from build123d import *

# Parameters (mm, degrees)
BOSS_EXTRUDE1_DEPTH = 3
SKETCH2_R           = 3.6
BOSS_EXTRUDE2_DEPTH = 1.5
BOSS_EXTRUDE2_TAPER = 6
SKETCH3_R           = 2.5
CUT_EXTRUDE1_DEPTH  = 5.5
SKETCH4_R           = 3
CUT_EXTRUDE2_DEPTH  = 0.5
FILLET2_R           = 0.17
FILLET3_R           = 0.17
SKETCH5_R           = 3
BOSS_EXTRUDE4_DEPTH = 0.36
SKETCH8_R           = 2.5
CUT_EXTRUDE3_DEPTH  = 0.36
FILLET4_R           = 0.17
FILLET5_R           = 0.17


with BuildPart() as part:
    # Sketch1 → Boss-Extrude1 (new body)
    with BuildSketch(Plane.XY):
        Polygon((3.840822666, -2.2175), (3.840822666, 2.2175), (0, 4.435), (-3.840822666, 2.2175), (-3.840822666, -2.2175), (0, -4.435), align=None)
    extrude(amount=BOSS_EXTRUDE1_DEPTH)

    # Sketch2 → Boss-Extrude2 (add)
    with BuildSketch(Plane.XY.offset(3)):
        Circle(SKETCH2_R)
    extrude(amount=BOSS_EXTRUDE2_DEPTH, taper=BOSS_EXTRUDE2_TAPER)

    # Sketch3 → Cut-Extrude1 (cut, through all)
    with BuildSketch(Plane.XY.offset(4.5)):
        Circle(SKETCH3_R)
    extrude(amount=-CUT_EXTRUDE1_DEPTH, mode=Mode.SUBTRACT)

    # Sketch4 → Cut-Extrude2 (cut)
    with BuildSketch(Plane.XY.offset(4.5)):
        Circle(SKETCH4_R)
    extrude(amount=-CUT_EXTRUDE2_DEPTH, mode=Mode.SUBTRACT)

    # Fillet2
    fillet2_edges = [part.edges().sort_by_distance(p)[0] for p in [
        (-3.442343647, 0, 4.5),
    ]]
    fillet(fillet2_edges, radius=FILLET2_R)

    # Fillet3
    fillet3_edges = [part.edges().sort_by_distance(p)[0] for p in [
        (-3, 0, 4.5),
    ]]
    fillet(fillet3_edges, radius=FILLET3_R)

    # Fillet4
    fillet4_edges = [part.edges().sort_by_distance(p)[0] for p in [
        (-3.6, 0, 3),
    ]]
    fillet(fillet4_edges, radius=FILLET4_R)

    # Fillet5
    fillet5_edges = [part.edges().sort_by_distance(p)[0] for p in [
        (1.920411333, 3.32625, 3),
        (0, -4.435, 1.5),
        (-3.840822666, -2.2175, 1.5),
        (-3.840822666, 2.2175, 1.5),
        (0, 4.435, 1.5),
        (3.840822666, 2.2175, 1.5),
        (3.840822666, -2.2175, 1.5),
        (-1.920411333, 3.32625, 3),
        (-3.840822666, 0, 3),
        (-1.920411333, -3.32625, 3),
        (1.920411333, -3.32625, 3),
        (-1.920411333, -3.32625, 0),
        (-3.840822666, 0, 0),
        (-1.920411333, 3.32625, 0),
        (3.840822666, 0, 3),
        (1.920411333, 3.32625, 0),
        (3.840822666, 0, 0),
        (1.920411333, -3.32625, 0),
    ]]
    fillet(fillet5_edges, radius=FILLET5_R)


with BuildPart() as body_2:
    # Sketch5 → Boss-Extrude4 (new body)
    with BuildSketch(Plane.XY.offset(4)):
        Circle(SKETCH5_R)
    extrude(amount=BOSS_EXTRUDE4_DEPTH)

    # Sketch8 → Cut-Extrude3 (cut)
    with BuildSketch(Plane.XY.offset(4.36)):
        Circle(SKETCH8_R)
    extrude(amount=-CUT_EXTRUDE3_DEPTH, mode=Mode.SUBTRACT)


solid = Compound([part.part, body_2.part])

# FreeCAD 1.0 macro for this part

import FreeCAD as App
import Part
import Sketcher

V = App.Vector
Q = App.Units.Quantity


def edges_at(feature, points):
    """Names of the edges that pass closest to the given points."""
    edges = feature.Shape.Edges
    near = lambda p: min(range(len(edges)), key=lambda i: edges[i].distToShape(Part.Vertex(*p))[0])
    return sorted({f"Edge{near(p) + 1}" for p in points})

doc = App.newDocument("Part")
body = doc.addObject("PartDesign::Body", "Body")

sketch1 = doc.addObject("Sketcher::SketchObject", "Sketch")
body.addObject(sketch1)
sketch1.AttachmentSupport = (doc.XY_Plane, [""])
sketch1.MapMode = "FlatFace"
sketch1.addGeometry(Part.LineSegment(V(3.8, -2.2, 0), V(3.8, 2.2, 0)), False)
sketch1.addGeometry(Part.LineSegment(V(3.8, 2.2, 0), V(0, 4.4, 0)), False)
sketch1.addGeometry(Part.LineSegment(V(0, 4.4, 0), V(-3.8, 2.2, 0)), False)
sketch1.addGeometry(Part.LineSegment(V(-3.8, 2.2, 0), V(-3.8, -2.2, 0)), False)
sketch1.addGeometry(Part.LineSegment(V(-3.8, -2.2, 0), V(0, -4.4, 0)), False)
sketch1.addGeometry(Part.LineSegment(V(0, -4.4, 0), V(3.8, -2.2, 0)), False)
sketch1.addConstraint(Sketcher.Constraint("Coincident", 0, 2, 1, 1))
sketch1.addConstraint(Sketcher.Constraint("Coincident", 1, 2, 2, 1))
sketch1.addConstraint(Sketcher.Constraint("Coincident", 2, 2, 3, 1))
sketch1.addConstraint(Sketcher.Constraint("Coincident", 3, 2, 4, 1))
sketch1.addConstraint(Sketcher.Constraint("Coincident", 4, 2, 5, 1))
sketch1.addConstraint(Sketcher.Constraint("Coincident", 5, 2, 0, 1))
sketch1.addConstraint(Sketcher.Constraint("Vertical", 0))
sketch1.addConstraint(Sketcher.Constraint("Vertical", 3))
sketch1.addConstraint(Sketcher.Constraint("Symmetric", 0, 2, 3, 2, -1, 1))
sketch1.addConstraint(Sketcher.Constraint("Symmetric", 1, 2, 4, 2, -1, 1))
sketch1.addConstraint(Sketcher.Constraint("PointOnObject", 1, 2, -2))
sketch1.addConstraint(Sketcher.Constraint("Parallel", 2, 5))
sketch1.addConstraint(Sketcher.Constraint("Horizontal", 0, 2, 2, 2))
sketch1.addConstraint(Sketcher.Constraint("Angle", 1, Q("150 deg")))
sketch1.addConstraint(Sketcher.Constraint("DistanceY", 0, 1, 0, 2, 4.435))
sketch1.addConstraint(Sketcher.Constraint("DistanceY", 4, 2, 1, 2, 8.87))
pad1 = doc.addObject("PartDesign::Pad", "Pad")
body.addObject(pad1)
pad1.Profile = sketch1
pad1.Length = 3

sketch2 = doc.addObject("Sketcher::SketchObject", "Sketch001")
body.addObject(sketch2)
sketch2.AttachmentSupport = (doc.XY_Plane, [""])
sketch2.MapMode = "FlatFace"
sketch2.AttachmentOffset = App.Placement(V(0, 0, 3), App.Rotation())
sketch2.addGeometry(Part.Circle(V(0, 0, 0), V(0, 0, 1), 3.6), False)
sketch2.addConstraint(Sketcher.Constraint("Coincident", 0, 3, -1, 1))
sketch2.addConstraint(Sketcher.Constraint("Diameter", 0, 7.2))
pad2 = doc.addObject("PartDesign::Pad", "Pad001")
body.addObject(pad2)
pad2.Profile = sketch2
pad2.Length = 1.5
pad2.TaperAngle = -6

sketch3 = doc.addObject("Sketcher::SketchObject", "Sketch002")
body.addObject(sketch3)
sketch3.AttachmentSupport = (doc.XY_Plane, [""])
sketch3.MapMode = "FlatFace"
sketch3.AttachmentOffset = App.Placement(V(0, 0, 4.5), App.Rotation())
sketch3.addGeometry(Part.Circle(V(0, 0, 0), V(0, 0, 1), 2.5), False)
sketch3.addConstraint(Sketcher.Constraint("Coincident", 0, 3, -1, 1))
sketch3.addConstraint(Sketcher.Constraint("Diameter", 0, 5.0))
pocket1 = doc.addObject("PartDesign::Pocket", "Pocket")
body.addObject(pocket1)
pocket1.Profile = sketch3
pocket1.Type = "ThroughAll"

sketch4 = doc.addObject("Sketcher::SketchObject", "Sketch003")
body.addObject(sketch4)
sketch4.AttachmentSupport = (doc.XY_Plane, [""])
sketch4.MapMode = "FlatFace"
sketch4.AttachmentOffset = App.Placement(V(0, 0, 4.5), App.Rotation())
sketch4.addGeometry(Part.Circle(V(0, 0, 0), V(0, 0, 1), 3), False)
sketch4.addConstraint(Sketcher.Constraint("Coincident", 0, 3, -1, 1))
sketch4.addConstraint(Sketcher.Constraint("Diameter", 0, 6.0))
pocket2 = doc.addObject("PartDesign::Pocket", "Pocket001")
body.addObject(pocket2)
pocket2.Profile = sketch4
pocket2.Length = 0.5
doc.recompute()

fillet = doc.addObject("PartDesign::Fillet", "Fillet")
body.addObject(fillet)
fillet.Base = (pocket2, edges_at(pocket2, [(-3.442, 0, 4.5)]))
fillet.Radius = 0.17
doc.recompute()

fillet2 = doc.addObject("PartDesign::Fillet", "Fillet001")
body.addObject(fillet2)
fillet2.Base = (fillet, edges_at(fillet, [(-3, 0, 4.5)]))
fillet2.Radius = 0.17
doc.recompute()

fillet3 = doc.addObject("PartDesign::Fillet", "Fillet002")
body.addObject(fillet3)
fillet3.Base = (fillet2, edges_at(fillet2, [(-3.6, 0, 3)]))
fillet3.Radius = 0.17
doc.recompute()

fillet4 = doc.addObject("PartDesign::Fillet", "Fillet003")
body.addObject(fillet4)
fillet4.Base = (fillet3, edges_at(fillet3, [
    (1.92, 3.326, 3),
    (0, -4.435, 1.5),
    (-3.841, -2.217, 1.5),
    (-3.841, 2.217, 1.5),
    (0, 4.435, 1.5),
    (3.841, 2.217, 1.5),
    (3.841, -2.217, 1.5),
    (-1.92, 3.326, 3),
    (-3.841, 0, 3),
    (-1.92, -3.326, 3),
    (1.92, -3.326, 3),
    (-1.92, -3.326, 0),
    (-3.841, 0, 0),
    (-1.92, 3.326, 0),
    (3.841, 0, 3),
    (1.92, 3.326, 0),
    (3.841, 0, 0),
    (1.92, -3.326, 0),
]))
fillet4.Radius = 0.17
body2 = doc.addObject("PartDesign::Body", "Body001")

sketch5 = doc.addObject("Sketcher::SketchObject", "Sketch004")
body2.addObject(sketch5)
sketch5.AttachmentSupport = (doc.getObject("XY_Plane001"), [""])
sketch5.MapMode = "FlatFace"
sketch5.AttachmentOffset = App.Placement(V(0, 0, 4), App.Rotation())
sketch5.addGeometry(Part.Circle(V(0, 0, 0), V(0, 0, 1), 3), False)
sketch5.addConstraint(Sketcher.Constraint("Coincident", 0, 3, -1, 1))
sketch5.addConstraint(Sketcher.Constraint("Diameter", 0, 6.0))
pad3 = doc.addObject("PartDesign::Pad", "Pad002")
body2.addObject(pad3)
pad3.Profile = sketch5
pad3.Length = 0.36

sketch6 = doc.addObject("Sketcher::SketchObject", "Sketch005")
body2.addObject(sketch6)
sketch6.AttachmentSupport = (doc.getObject("XY_Plane001"), [""])
sketch6.MapMode = "FlatFace"
sketch6.AttachmentOffset = App.Placement(V(0, 0, 4.36), App.Rotation())
sketch6.addGeometry(Part.Circle(V(0, 0, 0), V(0, 0, 1), 2.5), False)
sketch6.addConstraint(Sketcher.Constraint("Coincident", 0, 3, -1, 1))
sketch6.addConstraint(Sketcher.Constraint("Diameter", 0, 5.0))
pocket3 = doc.addObject("PartDesign::Pocket", "Pocket002")
body2.addObject(pocket3)
pocket3.Profile = sketch6
pocket3.Length = 0.36

doc.recompute()
